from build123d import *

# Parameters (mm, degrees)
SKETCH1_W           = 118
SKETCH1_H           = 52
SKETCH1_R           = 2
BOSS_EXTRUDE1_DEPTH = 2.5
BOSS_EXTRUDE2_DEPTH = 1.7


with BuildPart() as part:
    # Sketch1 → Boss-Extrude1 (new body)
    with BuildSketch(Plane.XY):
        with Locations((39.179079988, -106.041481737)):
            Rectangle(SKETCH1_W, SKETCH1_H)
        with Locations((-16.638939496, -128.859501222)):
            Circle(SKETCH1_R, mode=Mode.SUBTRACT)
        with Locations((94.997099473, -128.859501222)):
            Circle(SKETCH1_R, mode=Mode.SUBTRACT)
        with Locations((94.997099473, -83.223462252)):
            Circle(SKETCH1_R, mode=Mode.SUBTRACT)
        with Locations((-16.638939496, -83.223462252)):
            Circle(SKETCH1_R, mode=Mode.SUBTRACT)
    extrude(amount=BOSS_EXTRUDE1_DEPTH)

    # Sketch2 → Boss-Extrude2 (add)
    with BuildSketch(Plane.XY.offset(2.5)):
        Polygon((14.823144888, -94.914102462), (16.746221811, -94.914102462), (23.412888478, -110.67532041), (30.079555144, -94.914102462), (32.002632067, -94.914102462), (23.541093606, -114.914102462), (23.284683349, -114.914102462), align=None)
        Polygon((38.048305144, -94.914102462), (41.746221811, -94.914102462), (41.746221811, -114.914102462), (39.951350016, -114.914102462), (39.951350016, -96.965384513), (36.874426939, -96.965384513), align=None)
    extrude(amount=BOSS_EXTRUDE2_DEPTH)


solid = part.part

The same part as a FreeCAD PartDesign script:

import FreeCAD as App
import Part
import Sketcher

V = App.Vector


def add_polygon(sketch, points):
    """Adds a closed chain of lines whose ends are joined by coincident constraints."""
    first, n = sketch.GeometryCount, len(points)
    for a, b in zip(points, points[1:] + points[:1]):
        sketch.addGeometry(Part.LineSegment(App.Vector(*a, 0), App.Vector(*b, 0)), False)
    for i in range(n):
        sketch.addConstraint(Sketcher.Constraint("Coincident", first + i, 2, first + (i + 1) % n, 1))

doc = App.newDocument("Part")
body = doc.addObject("PartDesign::Body", "Body")

sketch1 = body.newObject("Sketcher::SketchObject", "Sketch")
sketch1.AttachmentSupport = (doc.getObject("XY_Plane"), [""])
sketch1.MapMode = "FlatFace"
add_polygon(sketch1, [(-19.8, -80), (-19.8, -132), (98.2, -132), (98.2, -80)])
sketch1.addGeometry(Part.Circle(V(-16.6, -128.9, 0), V(0, 0, 1), 2), False)
sketch1.addGeometry(Part.Circle(V(95, -128.9, 0), V(0, 0, 1), 2), False)
sketch1.addGeometry(Part.Circle(V(-16.6, -83.2, 0), V(0, 0, 1), 2), False)
sketch1.addGeometry(Part.Circle(V(95, -83.2, 0), V(0, 0, 1), 2), False)
sketch1.addConstraint([
    Sketcher.Constraint("Vertical", 0),
    Sketcher.Constraint("Horizontal", 1),
    Sketcher.Constraint("Vertical", 2),
    Sketcher.Constraint("Horizontal", 3),
    Sketcher.Constraint("Equal", 4, 5),
    Sketcher.Constraint("Equal", 5, 6),
    Sketcher.Constraint("Equal", 6, 7),
    Sketcher.Constraint("Horizontal", 4, 3, 5, 3),
    Sketcher.Constraint("Horizontal", 6, 3, 7, 3),
    Sketcher.Constraint("Vertical", 4, 3, 6, 3),
    Sketcher.Constraint("Vertical", 5, 3, 7, 3),
    Sketcher.Constraint("Diameter", 4, 4.0),
    Sketcher.Constraint("DistanceX", 1, 1, 1, 2, 118.0),
    Sketcher.Constraint("DistanceY", 0, 2, 0, 1, 52.0),
    Sketcher.Constraint("DistanceY", 4, 3, -1, 1, 128.859501),
    Sketcher.Constraint("DistanceX", -1, 1, 5, 3, 94.997099),
    Sketcher.Constraint("DistanceX", 4, 3, -1, 1, 16.638939),
    Sketcher.Constraint("DistanceX", 0, 2, -1, 1, 19.82092),
    Sketcher.Constraint("DistanceY", 0, 2, -1, 1, 132.041482),
    Sketcher.Constraint("DistanceY", 4, 3, 6, 3, 45.636039),
])
pad1 = body.newObject("PartDesign::Pad", "Pad")
pad1.Profile = sketch1
pad1.Length = 2.5

sketch2 = body.newObject("Sketcher::SketchObject", "Sketch001")
sketch2.AttachmentSupport = (doc.getObject("XY_Plane"), [""])
sketch2.MapMode = "FlatFace"
sketch2.AttachmentOffset = App.Placement(V(0, 0, 2.5), App.Rotation())
add_polygon(sketch2, [(16.75, -94.91), (14.82, -94.91), (23.28, -114.91), (23.54, -114.91), (32, -94.91), (30.08, -94.91), (23.41, -110.68)])
add_polygon(sketch2, [(41.75, -94.91), (38.05, -94.91), (36.87, -96.97), (39.95, -96.97), (39.95, -114.91), (41.75, -114.91)])
sketch2.addConstraint([
    Sketcher.Constraint("Horizontal", 0),
    Sketcher.Constraint("Horizontal", 2),
    Sketcher.Constraint("Horizontal", 4),
    Sketcher.Constraint("Horizontal", 7),
    Sketcher.Constraint("Horizontal", 9),
    Sketcher.Constraint("Vertical", 10),
    Sketcher.Constraint("Horizontal", 11),
    Sketcher.Constraint("Vertical", 12),
    Sketcher.Constraint("Horizontal", 0, 2, 3, 2),
    Sketcher.Constraint("Horizontal", 6, 2, 7, 2),
    Sketcher.Constraint("Horizontal", 2, 2, 10, 2),
    Sketcher.Constraint("Equal", 0, 4),
    Sketcher.Constraint("Equal", 1, 3),
    Sketcher.Constraint("Equal", 5, 6),
    Sketcher.Constraint("DistanceY", 12, 1, 12, 2, 20.0),
    Sketcher.Constraint("Distance", 1, 21.716299),
    Sketcher.Constraint("DistanceX", 2, 1, 2, 2, 0.25641),
    Sketcher.Constraint("DistanceX", 11, 1, 11, 2, 1.794872),
    Sketcher.Constraint("Distance", 8, 2.363419),
    Sketcher.Constraint("DistanceX", 0, 2, 0, 1, 1.923077),
    Sketcher.Constraint("DistanceX", 7, 2, 7, 1, 3.697917),
    Sketcher.Constraint("DistanceX", 9, 1, 9, 2, 3.076923),
    Sketcher.Constraint("DistanceX", -1, 1, 5, 2, 23.412888),
    Sketcher.Constraint("DistanceY", 5, 2, -1, 1, 110.67532),
    Sketcher.Constraint("DistanceX", -1, 1, 9, 2, 39.95135),
    Sketcher.Constraint("Distance", 5, 17.113166),
])
pad2 = body.newObject("PartDesign::Pad", "Pad001")
pad2.Profile = sketch2
pad2.Length = 1.7

doc.recompute()
